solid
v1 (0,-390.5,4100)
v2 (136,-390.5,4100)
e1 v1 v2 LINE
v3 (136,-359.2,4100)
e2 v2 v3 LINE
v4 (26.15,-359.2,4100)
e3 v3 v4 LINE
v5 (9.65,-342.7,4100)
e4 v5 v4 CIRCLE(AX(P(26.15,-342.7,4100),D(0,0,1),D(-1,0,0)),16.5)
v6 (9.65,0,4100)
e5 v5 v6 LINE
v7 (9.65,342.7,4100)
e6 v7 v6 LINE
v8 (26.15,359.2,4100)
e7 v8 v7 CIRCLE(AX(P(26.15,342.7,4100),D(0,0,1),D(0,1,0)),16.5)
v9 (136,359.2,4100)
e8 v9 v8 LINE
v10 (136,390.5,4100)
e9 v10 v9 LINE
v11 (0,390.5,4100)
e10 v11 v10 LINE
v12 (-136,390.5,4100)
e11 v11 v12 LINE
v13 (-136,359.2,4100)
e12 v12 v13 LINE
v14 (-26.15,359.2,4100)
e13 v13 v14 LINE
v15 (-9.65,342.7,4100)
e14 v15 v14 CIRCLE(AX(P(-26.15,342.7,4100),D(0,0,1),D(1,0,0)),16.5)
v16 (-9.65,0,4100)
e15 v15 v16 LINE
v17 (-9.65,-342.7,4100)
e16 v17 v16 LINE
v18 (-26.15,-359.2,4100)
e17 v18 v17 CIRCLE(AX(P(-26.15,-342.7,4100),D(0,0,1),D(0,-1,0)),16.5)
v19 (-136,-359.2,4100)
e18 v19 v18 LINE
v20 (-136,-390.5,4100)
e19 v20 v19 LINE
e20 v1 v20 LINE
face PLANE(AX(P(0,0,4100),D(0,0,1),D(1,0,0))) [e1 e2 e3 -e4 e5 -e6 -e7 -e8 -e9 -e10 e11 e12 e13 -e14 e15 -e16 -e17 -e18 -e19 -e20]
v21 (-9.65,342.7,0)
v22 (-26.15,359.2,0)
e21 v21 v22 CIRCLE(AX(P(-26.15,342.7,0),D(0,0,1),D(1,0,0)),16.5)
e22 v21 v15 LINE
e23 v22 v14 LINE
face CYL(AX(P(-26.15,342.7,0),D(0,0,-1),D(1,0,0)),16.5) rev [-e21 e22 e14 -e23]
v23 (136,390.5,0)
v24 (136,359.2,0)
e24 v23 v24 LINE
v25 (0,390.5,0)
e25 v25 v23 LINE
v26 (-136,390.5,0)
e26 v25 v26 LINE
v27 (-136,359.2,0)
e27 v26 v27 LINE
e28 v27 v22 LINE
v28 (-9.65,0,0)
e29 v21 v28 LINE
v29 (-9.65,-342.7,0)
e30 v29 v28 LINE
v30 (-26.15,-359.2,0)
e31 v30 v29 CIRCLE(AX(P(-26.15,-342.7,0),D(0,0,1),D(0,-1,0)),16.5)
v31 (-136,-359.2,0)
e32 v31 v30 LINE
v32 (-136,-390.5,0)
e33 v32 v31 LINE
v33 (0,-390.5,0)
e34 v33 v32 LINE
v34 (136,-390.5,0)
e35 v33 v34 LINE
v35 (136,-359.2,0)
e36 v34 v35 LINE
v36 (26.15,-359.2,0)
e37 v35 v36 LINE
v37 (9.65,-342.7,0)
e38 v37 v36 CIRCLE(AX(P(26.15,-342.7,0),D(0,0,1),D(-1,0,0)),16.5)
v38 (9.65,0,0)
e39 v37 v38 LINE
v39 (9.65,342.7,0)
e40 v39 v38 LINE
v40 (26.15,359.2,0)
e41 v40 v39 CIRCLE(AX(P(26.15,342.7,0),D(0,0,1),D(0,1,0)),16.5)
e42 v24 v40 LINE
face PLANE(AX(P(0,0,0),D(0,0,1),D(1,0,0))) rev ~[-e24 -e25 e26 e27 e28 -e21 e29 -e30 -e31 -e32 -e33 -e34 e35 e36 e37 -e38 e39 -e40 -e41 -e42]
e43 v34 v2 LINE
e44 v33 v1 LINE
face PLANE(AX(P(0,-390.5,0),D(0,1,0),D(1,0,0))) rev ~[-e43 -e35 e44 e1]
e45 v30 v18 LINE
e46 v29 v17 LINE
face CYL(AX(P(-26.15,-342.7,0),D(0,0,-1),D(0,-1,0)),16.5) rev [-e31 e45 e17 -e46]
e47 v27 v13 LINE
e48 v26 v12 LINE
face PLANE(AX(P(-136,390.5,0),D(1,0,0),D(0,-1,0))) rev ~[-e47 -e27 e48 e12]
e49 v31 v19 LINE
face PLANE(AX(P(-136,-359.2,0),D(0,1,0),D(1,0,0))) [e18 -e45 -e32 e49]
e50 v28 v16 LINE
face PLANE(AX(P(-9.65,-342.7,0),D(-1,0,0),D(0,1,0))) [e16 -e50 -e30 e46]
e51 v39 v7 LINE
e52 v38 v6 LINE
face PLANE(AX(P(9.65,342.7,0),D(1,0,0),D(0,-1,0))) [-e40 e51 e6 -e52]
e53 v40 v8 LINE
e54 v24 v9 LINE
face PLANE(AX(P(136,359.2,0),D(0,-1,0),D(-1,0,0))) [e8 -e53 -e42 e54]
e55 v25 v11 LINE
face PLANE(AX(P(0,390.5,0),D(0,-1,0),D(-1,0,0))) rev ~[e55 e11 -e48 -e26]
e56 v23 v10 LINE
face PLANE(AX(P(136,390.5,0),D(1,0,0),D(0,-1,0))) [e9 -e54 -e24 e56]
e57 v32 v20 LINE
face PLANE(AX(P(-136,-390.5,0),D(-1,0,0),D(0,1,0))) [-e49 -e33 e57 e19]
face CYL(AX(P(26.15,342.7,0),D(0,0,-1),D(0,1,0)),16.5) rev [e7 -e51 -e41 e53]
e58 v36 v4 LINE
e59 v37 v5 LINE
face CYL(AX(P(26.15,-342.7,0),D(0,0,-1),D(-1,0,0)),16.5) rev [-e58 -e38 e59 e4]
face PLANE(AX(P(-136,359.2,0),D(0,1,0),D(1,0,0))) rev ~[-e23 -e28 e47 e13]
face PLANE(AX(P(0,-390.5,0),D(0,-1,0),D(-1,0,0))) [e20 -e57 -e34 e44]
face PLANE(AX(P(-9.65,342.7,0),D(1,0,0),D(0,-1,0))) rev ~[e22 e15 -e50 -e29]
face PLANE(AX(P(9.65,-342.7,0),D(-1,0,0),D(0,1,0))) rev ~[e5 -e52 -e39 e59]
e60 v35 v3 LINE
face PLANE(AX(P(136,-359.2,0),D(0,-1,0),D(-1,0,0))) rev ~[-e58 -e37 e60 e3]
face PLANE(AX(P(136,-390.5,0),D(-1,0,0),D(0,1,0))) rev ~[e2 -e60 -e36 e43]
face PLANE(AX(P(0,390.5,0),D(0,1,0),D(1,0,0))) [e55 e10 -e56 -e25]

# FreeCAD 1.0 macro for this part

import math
import FreeCAD as App
import Part
import Sketcher
Q = App.Units.Quantity

doc = App.newDocument("Part")
params = doc.addObject("Spreadsheet::Sheet", "Params")
for row, (alias, value) in enumerate([
    ("sketch1_radius", "16.5 mm"),
    ("sketch1_height", "31.3 mm"),
    ("pad1_length", "4100 mm"),
], start=1):
    params.set(f"A{row}", alias)
    params.set(f"B{row}", "=" + value)
    params.setAlias(f"B{row}", alias)

body = doc.addObject("PartDesign::Body", "Body")

# Sketch on XY plane
sketch1 = body.newObject("Sketcher::SketchObject", "Sketch")
sketch1.AttachmentSupport = (doc.getObject("XY_Plane"), [""])
sketch1.MapMode = "FlatFace"
sketch1.addGeometry([
    Part.LineSegment(App.Vector(-136, -359, 0), App.Vector(-136, -390, 0)),  # 0
    Part.LineSegment(App.Vector(-136, -390, 0), App.Vector(136, -390, 0)),  # 1
    Part.LineSegment(App.Vector(136, -390, 0), App.Vector(136, -359, 0)),  # 2
    Part.LineSegment(App.Vector(136, -359, 0), App.Vector(26, -359, 0)),  # 3
    Part.ArcOfCircle(Part.Circle(App.Vector(26, -343, 0), App.Vector(0, 0, 1), 16), math.radians(180), math.radians(270)),  # 4
    Part.LineSegment(App.Vector(10, -343, 0), App.Vector(10, 343, 0)),  # 5
    Part.ArcOfCircle(Part.Circle(App.Vector(26, 343, 0), App.Vector(0, 0, 1), 16), math.radians(90), math.radians(180)),  # 6
    Part.LineSegment(App.Vector(26, 359, 0), App.Vector(136, 359, 0)),  # 7
    Part.LineSegment(App.Vector(136, 359, 0), App.Vector(136, 390, 0)),  # 8
    Part.LineSegment(App.Vector(136, 390, 0), App.Vector(-136, 390, 0)),  # 9
    Part.LineSegment(App.Vector(-136, 390, 0), App.Vector(-136, 359, 0)),  # 10
    Part.LineSegment(App.Vector(-136, 359, 0), App.Vector(-26, 359, 0)),  # 11
    Part.ArcOfCircle(Part.Circle(App.Vector(-26, 343, 0), App.Vector(0, 0, 1), 16), math.radians(0), math.radians(90)),  # 12
    Part.LineSegment(App.Vector(-10, 343, 0), App.Vector(-10, -343, 0)),  # 13
    Part.ArcOfCircle(Part.Circle(App.Vector(-26, -343, 0), App.Vector(0, 0, 1), 16), math.radians(-90), math.radians(0)),  # 14
    Part.LineSegment(App.Vector(-26, -359, 0), App.Vector(-136, -359, 0)),  # 15
], False)
sketch1.addConstraint([
    Sketcher.Constraint("Coincident", 0, 2, 1, 1),
    Sketcher.Constraint("Coincident", 1, 2, 2, 1),
    Sketcher.Constraint("Coincident", 2, 2, 3, 1),
    Sketcher.Constraint("Tangent", 3, 2, 4, 2),
    Sketcher.Constraint("Tangent", 4, 1, 5, 1),
    Sketcher.Constraint("Tangent", 5, 2, 6, 2),
    Sketcher.Constraint("Tangent", 6, 1, 7, 1),
    Sketcher.Constraint("Coincident", 7, 2, 8, 1),
    Sketcher.Constraint("Coincident", 8, 2, 9, 1),
    Sketcher.Constraint("Coincident", 9, 2, 10, 1),
    Sketcher.Constraint("Coincident", 10, 2, 11, 1),
    Sketcher.Constraint("Tangent", 11, 2, 12, 2),
    Sketcher.Constraint("Tangent", 12, 1, 13, 1),
    Sketcher.Constraint("Tangent", 13, 2, 14, 2),
    Sketcher.Constraint("Tangent", 14, 1, 15, 1),
    Sketcher.Constraint("Coincident", 15, 2, 0, 1),
    Sketcher.Constraint("Vertical", 0),
    Sketcher.Constraint("Horizontal", 1),
    Sketcher.Constraint("Vertical", 2),
    Sketcher.Constraint("Horizontal", 3),
    Sketcher.Constraint("Vertical", 5),
    Sketcher.Constraint("Horizontal", 7),
    Sketcher.Constraint("Vertical", 8),
    Sketcher.Constraint("Horizontal", 9),
    Sketcher.Constraint("Vertical", 10),
    Sketcher.Constraint("Horizontal", 11),
    Sketcher.Constraint("Vertical", 13),
    Sketcher.Constraint("Horizontal", 15),
    Sketcher.Constraint("Equal", 4, 6),
    Sketcher.Constraint("Equal", 6, 12),
    Sketcher.Constraint("Equal", 12, 14),
    Sketcher.Constraint("Symmetric", 4, 3, 12, 3, -1, 1),
    Sketcher.Constraint("Symmetric", 0, 2, 8, 2, -1, 1),
    Sketcher.Constraint("Symmetric", 7, 2, 10, 2, -2),
    Sketcher.Constraint("Symmetric", 2, 2, 15, 2, -2),
    Sketcher.Constraint("Radius", 4, Q("16.5 mm")),
    Sketcher.Constraint("DistanceY", 0, 2, 0, 1, Q("31.3 mm")),
    Sketcher.Constraint("DistanceX", 0, 2, -1, 1, Q("136 mm")),
    Sketcher.Constraint("DistanceY", 0, 2, -1, 1, Q("390.5 mm")),
    Sketcher.Constraint("DistanceX", -1, 1, 4, 1, Q("9.65 mm")),
])
sketch1.setExpression("Constraints[35]", "Params.sketch1_radius")
sketch1.setExpression("Constraints[36]", "Params.sketch1_height")
pad1 = body.newObject("PartDesign::Pad", "Pad")
pad1.Profile = sketch1
pad1.setExpression("Length", "Params.pad1_length")

doc.recompute()
